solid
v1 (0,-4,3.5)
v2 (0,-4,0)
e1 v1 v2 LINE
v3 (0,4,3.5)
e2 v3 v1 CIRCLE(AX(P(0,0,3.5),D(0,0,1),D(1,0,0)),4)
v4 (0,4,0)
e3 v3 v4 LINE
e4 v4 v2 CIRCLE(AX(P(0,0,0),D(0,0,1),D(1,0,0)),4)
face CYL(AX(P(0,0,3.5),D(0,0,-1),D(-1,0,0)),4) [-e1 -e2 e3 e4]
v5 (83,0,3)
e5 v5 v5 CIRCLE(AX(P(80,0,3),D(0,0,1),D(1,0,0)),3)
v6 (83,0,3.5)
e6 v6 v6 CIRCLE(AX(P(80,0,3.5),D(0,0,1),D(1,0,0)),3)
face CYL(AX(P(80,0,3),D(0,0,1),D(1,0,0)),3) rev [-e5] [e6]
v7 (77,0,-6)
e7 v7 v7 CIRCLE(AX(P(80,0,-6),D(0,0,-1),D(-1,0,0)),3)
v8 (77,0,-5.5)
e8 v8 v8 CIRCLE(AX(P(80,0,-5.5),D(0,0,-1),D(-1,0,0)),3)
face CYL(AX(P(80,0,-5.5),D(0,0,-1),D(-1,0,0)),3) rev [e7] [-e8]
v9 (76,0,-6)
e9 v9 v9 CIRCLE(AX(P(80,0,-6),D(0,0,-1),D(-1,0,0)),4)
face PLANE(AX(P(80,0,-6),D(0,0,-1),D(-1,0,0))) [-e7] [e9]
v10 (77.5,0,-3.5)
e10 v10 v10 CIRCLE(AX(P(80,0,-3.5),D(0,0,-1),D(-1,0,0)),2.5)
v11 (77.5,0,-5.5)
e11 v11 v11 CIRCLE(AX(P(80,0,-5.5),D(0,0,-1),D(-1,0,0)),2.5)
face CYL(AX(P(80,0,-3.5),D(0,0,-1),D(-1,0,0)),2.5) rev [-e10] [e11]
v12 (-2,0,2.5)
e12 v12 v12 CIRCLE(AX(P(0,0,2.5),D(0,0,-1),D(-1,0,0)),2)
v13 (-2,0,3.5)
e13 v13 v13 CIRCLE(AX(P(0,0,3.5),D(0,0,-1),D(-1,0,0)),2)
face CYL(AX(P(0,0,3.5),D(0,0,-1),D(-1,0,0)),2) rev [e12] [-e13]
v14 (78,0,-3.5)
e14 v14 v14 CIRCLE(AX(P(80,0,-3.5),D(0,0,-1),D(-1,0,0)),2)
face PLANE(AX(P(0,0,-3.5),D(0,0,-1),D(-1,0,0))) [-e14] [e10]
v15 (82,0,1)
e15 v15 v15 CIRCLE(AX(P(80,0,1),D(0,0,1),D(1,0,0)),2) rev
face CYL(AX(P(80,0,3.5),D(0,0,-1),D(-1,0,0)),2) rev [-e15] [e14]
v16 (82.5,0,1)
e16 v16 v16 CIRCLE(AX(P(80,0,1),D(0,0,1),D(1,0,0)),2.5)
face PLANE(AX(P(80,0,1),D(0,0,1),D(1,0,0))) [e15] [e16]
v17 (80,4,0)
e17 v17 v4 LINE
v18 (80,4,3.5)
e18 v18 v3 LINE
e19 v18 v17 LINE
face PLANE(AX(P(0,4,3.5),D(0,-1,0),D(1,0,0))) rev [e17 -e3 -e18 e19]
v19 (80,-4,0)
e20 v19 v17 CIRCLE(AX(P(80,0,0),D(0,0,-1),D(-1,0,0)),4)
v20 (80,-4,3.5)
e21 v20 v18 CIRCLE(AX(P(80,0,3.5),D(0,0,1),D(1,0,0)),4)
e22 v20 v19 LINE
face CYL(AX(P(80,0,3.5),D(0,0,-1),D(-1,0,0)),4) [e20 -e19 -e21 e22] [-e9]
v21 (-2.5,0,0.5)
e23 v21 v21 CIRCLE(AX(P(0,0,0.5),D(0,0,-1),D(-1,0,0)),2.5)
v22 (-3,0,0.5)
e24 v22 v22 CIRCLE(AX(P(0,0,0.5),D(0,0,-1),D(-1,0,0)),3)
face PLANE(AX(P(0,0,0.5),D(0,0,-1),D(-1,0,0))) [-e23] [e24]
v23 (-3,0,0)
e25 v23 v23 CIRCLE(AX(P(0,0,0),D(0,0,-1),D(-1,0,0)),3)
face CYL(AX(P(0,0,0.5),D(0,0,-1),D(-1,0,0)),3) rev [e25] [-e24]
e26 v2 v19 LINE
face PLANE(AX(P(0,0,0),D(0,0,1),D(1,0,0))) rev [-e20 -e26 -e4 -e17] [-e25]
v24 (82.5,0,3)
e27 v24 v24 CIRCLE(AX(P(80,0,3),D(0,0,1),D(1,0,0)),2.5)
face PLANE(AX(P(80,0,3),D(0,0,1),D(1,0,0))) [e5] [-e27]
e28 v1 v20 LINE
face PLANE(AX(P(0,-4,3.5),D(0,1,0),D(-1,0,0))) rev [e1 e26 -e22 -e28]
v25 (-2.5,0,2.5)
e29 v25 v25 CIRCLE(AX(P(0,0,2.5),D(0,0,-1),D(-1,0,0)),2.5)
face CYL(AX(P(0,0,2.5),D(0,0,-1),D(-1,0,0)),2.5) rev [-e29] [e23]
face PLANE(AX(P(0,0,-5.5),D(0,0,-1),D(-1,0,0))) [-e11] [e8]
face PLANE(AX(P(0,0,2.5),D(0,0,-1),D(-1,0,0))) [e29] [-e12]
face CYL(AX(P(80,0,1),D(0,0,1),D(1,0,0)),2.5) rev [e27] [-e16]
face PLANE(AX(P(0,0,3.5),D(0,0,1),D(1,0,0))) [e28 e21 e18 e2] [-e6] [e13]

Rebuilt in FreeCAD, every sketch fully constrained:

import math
import FreeCAD as App
import Part
import Sketcher
from FreeCAD import Vector
Q = App.Units.Quantity

doc = App.newDocument("Part")
params = doc.addObject("Spreadsheet::Sheet", "Params")
for row, (alias, value) in enumerate([
    ("sketch1_radius", "4 mm"),
    ("sketch1_width", "80 mm"),
    ("pad1_length", "3.5 mm"),
    ("sketch2_diameter", "4 mm"),
    ("sketch3_diameter", "5 mm"),
    ("sketch3_diameter2", "4 mm"),
    ("pocket2_length", "2.5 mm"),
    ("sketch4_diameter", "6 mm"),
    ("sketch4_diameter2", "5 mm"),
    ("pocket3_length", "0.5 mm"),
    ("sketch5_diameter", "8 mm"),
    ("pad2_length", "6 mm"),
    ("sketch6_diameter", "4 mm"),
    ("sketch7_diameter", "5 mm"),
    ("sketch7_diameter2", "4 mm"),
    ("pocket5_length", "2.5 mm"),
    ("sketch8_diameter", "6 mm"),
    ("sketch8_diameter2", "5 mm"),
    ("pocket6_length", "0.5 mm"),
    ("sketch9_diameter", "5 mm"),
    ("pocket7_length", "2.5 mm"),
    ("sketch10_diameter", "6 mm"),
    ("sketch10_diameter2", "5 mm"),
    ("pocket8_length", "0.5 mm"),
], start=1):
    params.set(f"A{row}", alias)
    params.set(f"B{row}", "=" + value)
    params.setAlias(f"B{row}", alias)

body = doc.addObject("PartDesign::Body", "Body")

# Sketch on XY plane
sketch1 = body.newObject("Sketcher::SketchObject", "Sketch")
sketch1.AttachmentSupport = (doc.getObject("XY_Plane"), [""])
sketch1.MapMode = "FlatFace"
sketch1.addGeometry([
    Part.LineSegment(Vector(80, 4, 0), Vector(0, 4, 0)),
    Part.ArcOfCircle(Part.Circle(Vector(0, 0, 0), Vector(0, 0, 1), 4), math.radians(90), math.radians(270)),
    Part.LineSegment(Vector(0, -4, 0), Vector(80, -4, 0)),
    Part.ArcOfCircle(Part.Circle(Vector(80, 0, 0), Vector(0, 0, 1), 4), math.radians(-90), math.radians(90)),
], False)
sketch1.addConstraint([
    Sketcher.Constraint("Tangent", 0, 2, 1, 1),
    Sketcher.Constraint("Tangent", 1, 2, 2, 1),
    Sketcher.Constraint("Tangent", 2, 2, 3, 1),
    Sketcher.Constraint("Tangent", 3, 2, 0, 1),
    Sketcher.Constraint("Horizontal", 0),
    Sketcher.Constraint("Horizontal", 2),
    Sketcher.Constraint("Coincident", 1, 3, -1, 1),
    Sketcher.Constraint("Radius", 1, Q("4 mm")),
    Sketcher.Constraint("DistanceX", 0, 2, 0, 1, Q("80 mm")),
])
sketch1.setExpression("Constraints[7]", "Params.sketch1_radius")
sketch1.setExpression("Constraints[8]", "Params.sketch1_width")
pad1 = body.newObject("PartDesign::Pad", "Pad")
pad1.Profile = sketch1
pad1.setExpression("Length", "Params.pad1_length")

# Sketch on XY plane
sketch2 = body.newObject("Sketcher::SketchObject", "Sketch001")
sketch2.AttachmentSupport = (doc.getObject("XY_Plane"), [""])
sketch2.MapMode = "FlatFace"
sketch2.addGeometry(Part.Circle(Vector(0, 0, 0), Vector(0, 0, 1), 2), False)
sketch2.addConstraint([
    Sketcher.Constraint("Coincident", 0, 3, -1, 1),
    Sketcher.Constraint("Diameter", 0, Q("4 mm")),
])
sketch2.setExpression("Constraints[1]", "Params.sketch2_diameter")
pocket1 = body.newObject("PartDesign::Pocket", "Pocket")
pocket1.Profile = sketch2
pocket1.Type = "ThroughAll"
pocket1.Reversed = True

# Sketch on XY plane
sketch3 = body.newObject("Sketcher::SketchObject", "Sketch002")
sketch3.AttachmentSupport = (doc.getObject("XY_Plane"), [""])
sketch3.MapMode = "FlatFace"
sketch3.addGeometry([
    Part.Circle(Vector(0, 0, 0), Vector(0, 0, 1), 2.5),
    Part.Circle(Vector(0, 0, 0), Vector(0, 0, 1), 2),
], False)
sketch3.addConstraint([
    Sketcher.Constraint("Coincident", 0, 3, -1, 1),
    Sketcher.Constraint("Coincident", 1, 3, -1, 1),
    Sketcher.Constraint("Diameter", 0, Q("5 mm")),
    Sketcher.Constraint("Diameter", 1, Q("4 mm")),
])
sketch3.setExpression("Constraints[2]", "Params.sketch3_diameter")
sketch3.setExpression("Constraints[3]", "Params.sketch3_diameter2")
pocket2 = body.newObject("PartDesign::Pocket", "Pocket001")
pocket2.Profile = sketch3
pocket2.setExpression("Length", "Params.pocket2_length")
pocket2.Reversed = True

# Sketch on XY plane
sketch4 = body.newObject("Sketcher::SketchObject", "Sketch003")
sketch4.AttachmentSupport = (doc.getObject("XY_Plane"), [""])
sketch4.MapMode = "FlatFace"
sketch4.addGeometry([
    Part.Circle(Vector(0, 0, 0), Vector(0, 0, 1), 3),
    Part.Circle(Vector(0, 0, 0), Vector(0, 0, 1), 2.5),
], False)
sketch4.addConstraint([
    Sketcher.Constraint("Coincident", 0, 3, -1, 1),
    Sketcher.Constraint("Coincident", 1, 3, -1, 1),
    Sketcher.Constraint("Diameter", 0, Q("6 mm")),
    Sketcher.Constraint("Diameter", 1, Q("5 mm")),
])
sketch4.setExpression("Constraints[2]", "Params.sketch4_diameter")
sketch4.setExpression("Constraints[3]", "Params.sketch4_diameter2")
pocket3 = body.newObject("PartDesign::Pocket", "Pocket002")
pocket3.Profile = sketch4
pocket3.setExpression("Length", "Params.pocket3_length")
pocket3.Reversed = True

# Sketch on XY plane
sketch5 = body.newObject("Sketcher::SketchObject", "Sketch004")
sketch5.AttachmentSupport = (doc.getObject("XY_Plane"), [""])
sketch5.MapMode = "FlatFace"
sketch5.AttachmentOffset = App.Placement(Vector(0, 0, -6), App.Rotation())
sketch5.addGeometry(Part.Circle(Vector(80, 0, 0), Vector(0, 0, 1), 4), False)
sketch5.addConstraint([
    Sketcher.Constraint("PointOnObject", 0, 3, -1),
    Sketcher.Constraint("Diameter", 0, Q("8 mm")),
    Sketcher.Constraint("DistanceX", -1, 1, 0, 3, Q("80 mm")),
])
sketch5.setExpression("Constraints[1]", "Params.sketch5_diameter")
pad2 = body.newObject("PartDesign::Pad", "Pad001")
pad2.Profile = sketch5
pad2.setExpression("Length", "Params.pad2_length")

# Sketch on XY plane
sketch6 = body.newObject("Sketcher::SketchObject", "Sketch005")
sketch6.AttachmentSupport = (doc.getObject("XY_Plane"), [""])
sketch6.MapMode = "FlatFace"
sketch6.AttachmentOffset = App.Placement(Vector(0, 0, -6), App.Rotation())
sketch6.addGeometry(Part.Circle(Vector(80, 0, 0), Vector(0, 0, 1), 2), False)
sketch6.addConstraint([
    Sketcher.Constraint("PointOnObject", 0, 3, -1),
    Sketcher.Constraint("Diameter", 0, Q("4 mm")),
    Sketcher.Constraint("DistanceX", -1, 1, 0, 3, Q("80 mm")),
])
sketch6.setExpression("Constraints[1]", "Params.sketch6_diameter")
pocket4 = body.newObject("PartDesign::Pocket", "Pocket003")
pocket4.Profile = sketch6
pocket4.Type = "ThroughAll"
pocket4.Reversed = True

# Sketch on XY plane
sketch7 = body.newObject("Sketcher::SketchObject", "Sketch006")
sketch7.AttachmentSupport = (doc.getObject("XY_Plane"), [""])
sketch7.MapMode = "FlatFace"
sketch7.AttachmentOffset = App.Placement(Vector(0, 0, -6), App.Rotation())
sketch7.addGeometry([
    Part.Circle(Vector(80, 0, 0), Vector(0, 0, 1), 2.5),
    Part.Circle(Vector(80, 0, 0), Vector(0, 0, 1), 2),
], False)
sketch7.addConstraint([
    Sketcher.Constraint("Coincident", 1, 3, 0, 3),
    Sketcher.Constraint("PointOnObject", 0, 3, -1),
    Sketcher.Constraint("Diameter", 0, Q("5 mm")),
    Sketcher.Constraint("Diameter", 1, Q("4 mm")),
    Sketcher.Constraint("DistanceX", -1, 1, 0, 3, Q("80 mm")),
])
sketch7.setExpression("Constraints[2]", "Params.sketch7_diameter")
sketch7.setExpression("Constraints[3]", "Params.sketch7_diameter2")
pocket5 = body.newObject("PartDesign::Pocket", "Pocket004")
pocket5.Profile = sketch7
pocket5.setExpression("Length", "Params.pocket5_length")
pocket5.Reversed = True

# Sketch on XY plane
sketch8 = body.newObject("Sketcher::SketchObject", "Sketch007")
sketch8.AttachmentSupport = (doc.getObject("XY_Plane"), [""])
sketch8.MapMode = "FlatFace"
sketch8.AttachmentOffset = App.Placement(Vector(0, 0, -6), App.Rotation())
sketch8.addGeometry([
    Part.Circle(Vector(80, 0, 0), Vector(0, 0, 1), 3),
    Part.Circle(Vector(80, 0, 0), Vector(0, 0, 1), 2.5),
], False)
sketch8.addConstraint([
    Sketcher.Constraint("Coincident", 1, 3, 0, 3),
    Sketcher.Constraint("PointOnObject", 0, 3, -1),
    Sketcher.Constraint("Diameter", 0, Q("6 mm")),
    Sketcher.Constraint("Diameter", 1, Q("5 mm")),
    Sketcher.Constraint("DistanceX", -1, 1, 0, 3, Q("80 mm")),
])
sketch8.setExpression("Constraints[2]", "Params.sketch8_diameter")
sketch8.setExpression("Constraints[3]", "Params.sketch8_diameter2")
pocket6 = body.newObject("PartDesign::Pocket", "Pocket005")
pocket6.Profile = sketch8
pocket6.setExpression("Length", "Params.pocket6_length")
pocket6.Reversed = True

# Sketch on XY plane
sketch9 = body.newObject("Sketcher::SketchObject", "Sketch008")
sketch9.AttachmentSupport = (doc.getObject("XY_Plane"), [""])
sketch9.MapMode = "FlatFace"
sketch9.AttachmentOffset = App.Placement(Vector(0, 0, 1), App.Rotation())
sketch9.addGeometry(Part.Circle(Vector(80, 0, 0), Vector(0, 0, 1), 2.5), False)
sketch9.addConstraint([
    Sketcher.Constraint("PointOnObject", 0, 3, -1),
    Sketcher.Constraint("Diameter", 0, Q("5 mm")),
    Sketcher.Constraint("DistanceX", -1, 1, 0, 3, Q("80 mm")),
])
sketch9.setExpression("Constraints[1]", "Params.sketch9_diameter")
pocket7 = body.newObject("PartDesign::Pocket", "Pocket006")
pocket7.Profile = sketch9
pocket7.setExpression("Length", "Params.pocket7_length")
pocket7.Reversed = True

# Sketch on XY plane
sketch10 = body.newObject("Sketcher::SketchObject", "Sketch009")
sketch10.AttachmentSupport = (doc.getObject("XY_Plane"), [""])
sketch10.MapMode = "FlatFace"
sketch10.AttachmentOffset = App.Placement(Vector(0, 0, 3), App.Rotation())
sketch10.addGeometry([
    Part.Circle(Vector(80, 0, 0), Vector(0, 0, 1), 3),
    Part.Circle(Vector(80, 0, 0), Vector(0, 0, 1), 2.5),
], False)
sketch10.addConstraint([
    Sketcher.Constraint("Coincident", 1, 3, 0, 3),
    Sketcher.Constraint("PointOnObject", 0, 3, -1),
    Sketcher.Constraint("Diameter", 0, Q("6 mm")),
    Sketcher.Constraint("Diameter", 1, Q("5 mm")),
    Sketcher.Constraint("DistanceX", -1, 1, 0, 3, Q("80 mm")),
])
sketch10.setExpression("Constraints[2]", "Params.sketch10_diameter")
sketch10.setExpression("Constraints[3]", "Params.sketch10_diameter2")
pocket8 = body.newObject("PartDesign::Pocket", "Pocket007")
pocket8.Profile = sketch10
pocket8.setExpression("Length", "Params.pocket8_length")
pocket8.Reversed = True

doc.recompute()
